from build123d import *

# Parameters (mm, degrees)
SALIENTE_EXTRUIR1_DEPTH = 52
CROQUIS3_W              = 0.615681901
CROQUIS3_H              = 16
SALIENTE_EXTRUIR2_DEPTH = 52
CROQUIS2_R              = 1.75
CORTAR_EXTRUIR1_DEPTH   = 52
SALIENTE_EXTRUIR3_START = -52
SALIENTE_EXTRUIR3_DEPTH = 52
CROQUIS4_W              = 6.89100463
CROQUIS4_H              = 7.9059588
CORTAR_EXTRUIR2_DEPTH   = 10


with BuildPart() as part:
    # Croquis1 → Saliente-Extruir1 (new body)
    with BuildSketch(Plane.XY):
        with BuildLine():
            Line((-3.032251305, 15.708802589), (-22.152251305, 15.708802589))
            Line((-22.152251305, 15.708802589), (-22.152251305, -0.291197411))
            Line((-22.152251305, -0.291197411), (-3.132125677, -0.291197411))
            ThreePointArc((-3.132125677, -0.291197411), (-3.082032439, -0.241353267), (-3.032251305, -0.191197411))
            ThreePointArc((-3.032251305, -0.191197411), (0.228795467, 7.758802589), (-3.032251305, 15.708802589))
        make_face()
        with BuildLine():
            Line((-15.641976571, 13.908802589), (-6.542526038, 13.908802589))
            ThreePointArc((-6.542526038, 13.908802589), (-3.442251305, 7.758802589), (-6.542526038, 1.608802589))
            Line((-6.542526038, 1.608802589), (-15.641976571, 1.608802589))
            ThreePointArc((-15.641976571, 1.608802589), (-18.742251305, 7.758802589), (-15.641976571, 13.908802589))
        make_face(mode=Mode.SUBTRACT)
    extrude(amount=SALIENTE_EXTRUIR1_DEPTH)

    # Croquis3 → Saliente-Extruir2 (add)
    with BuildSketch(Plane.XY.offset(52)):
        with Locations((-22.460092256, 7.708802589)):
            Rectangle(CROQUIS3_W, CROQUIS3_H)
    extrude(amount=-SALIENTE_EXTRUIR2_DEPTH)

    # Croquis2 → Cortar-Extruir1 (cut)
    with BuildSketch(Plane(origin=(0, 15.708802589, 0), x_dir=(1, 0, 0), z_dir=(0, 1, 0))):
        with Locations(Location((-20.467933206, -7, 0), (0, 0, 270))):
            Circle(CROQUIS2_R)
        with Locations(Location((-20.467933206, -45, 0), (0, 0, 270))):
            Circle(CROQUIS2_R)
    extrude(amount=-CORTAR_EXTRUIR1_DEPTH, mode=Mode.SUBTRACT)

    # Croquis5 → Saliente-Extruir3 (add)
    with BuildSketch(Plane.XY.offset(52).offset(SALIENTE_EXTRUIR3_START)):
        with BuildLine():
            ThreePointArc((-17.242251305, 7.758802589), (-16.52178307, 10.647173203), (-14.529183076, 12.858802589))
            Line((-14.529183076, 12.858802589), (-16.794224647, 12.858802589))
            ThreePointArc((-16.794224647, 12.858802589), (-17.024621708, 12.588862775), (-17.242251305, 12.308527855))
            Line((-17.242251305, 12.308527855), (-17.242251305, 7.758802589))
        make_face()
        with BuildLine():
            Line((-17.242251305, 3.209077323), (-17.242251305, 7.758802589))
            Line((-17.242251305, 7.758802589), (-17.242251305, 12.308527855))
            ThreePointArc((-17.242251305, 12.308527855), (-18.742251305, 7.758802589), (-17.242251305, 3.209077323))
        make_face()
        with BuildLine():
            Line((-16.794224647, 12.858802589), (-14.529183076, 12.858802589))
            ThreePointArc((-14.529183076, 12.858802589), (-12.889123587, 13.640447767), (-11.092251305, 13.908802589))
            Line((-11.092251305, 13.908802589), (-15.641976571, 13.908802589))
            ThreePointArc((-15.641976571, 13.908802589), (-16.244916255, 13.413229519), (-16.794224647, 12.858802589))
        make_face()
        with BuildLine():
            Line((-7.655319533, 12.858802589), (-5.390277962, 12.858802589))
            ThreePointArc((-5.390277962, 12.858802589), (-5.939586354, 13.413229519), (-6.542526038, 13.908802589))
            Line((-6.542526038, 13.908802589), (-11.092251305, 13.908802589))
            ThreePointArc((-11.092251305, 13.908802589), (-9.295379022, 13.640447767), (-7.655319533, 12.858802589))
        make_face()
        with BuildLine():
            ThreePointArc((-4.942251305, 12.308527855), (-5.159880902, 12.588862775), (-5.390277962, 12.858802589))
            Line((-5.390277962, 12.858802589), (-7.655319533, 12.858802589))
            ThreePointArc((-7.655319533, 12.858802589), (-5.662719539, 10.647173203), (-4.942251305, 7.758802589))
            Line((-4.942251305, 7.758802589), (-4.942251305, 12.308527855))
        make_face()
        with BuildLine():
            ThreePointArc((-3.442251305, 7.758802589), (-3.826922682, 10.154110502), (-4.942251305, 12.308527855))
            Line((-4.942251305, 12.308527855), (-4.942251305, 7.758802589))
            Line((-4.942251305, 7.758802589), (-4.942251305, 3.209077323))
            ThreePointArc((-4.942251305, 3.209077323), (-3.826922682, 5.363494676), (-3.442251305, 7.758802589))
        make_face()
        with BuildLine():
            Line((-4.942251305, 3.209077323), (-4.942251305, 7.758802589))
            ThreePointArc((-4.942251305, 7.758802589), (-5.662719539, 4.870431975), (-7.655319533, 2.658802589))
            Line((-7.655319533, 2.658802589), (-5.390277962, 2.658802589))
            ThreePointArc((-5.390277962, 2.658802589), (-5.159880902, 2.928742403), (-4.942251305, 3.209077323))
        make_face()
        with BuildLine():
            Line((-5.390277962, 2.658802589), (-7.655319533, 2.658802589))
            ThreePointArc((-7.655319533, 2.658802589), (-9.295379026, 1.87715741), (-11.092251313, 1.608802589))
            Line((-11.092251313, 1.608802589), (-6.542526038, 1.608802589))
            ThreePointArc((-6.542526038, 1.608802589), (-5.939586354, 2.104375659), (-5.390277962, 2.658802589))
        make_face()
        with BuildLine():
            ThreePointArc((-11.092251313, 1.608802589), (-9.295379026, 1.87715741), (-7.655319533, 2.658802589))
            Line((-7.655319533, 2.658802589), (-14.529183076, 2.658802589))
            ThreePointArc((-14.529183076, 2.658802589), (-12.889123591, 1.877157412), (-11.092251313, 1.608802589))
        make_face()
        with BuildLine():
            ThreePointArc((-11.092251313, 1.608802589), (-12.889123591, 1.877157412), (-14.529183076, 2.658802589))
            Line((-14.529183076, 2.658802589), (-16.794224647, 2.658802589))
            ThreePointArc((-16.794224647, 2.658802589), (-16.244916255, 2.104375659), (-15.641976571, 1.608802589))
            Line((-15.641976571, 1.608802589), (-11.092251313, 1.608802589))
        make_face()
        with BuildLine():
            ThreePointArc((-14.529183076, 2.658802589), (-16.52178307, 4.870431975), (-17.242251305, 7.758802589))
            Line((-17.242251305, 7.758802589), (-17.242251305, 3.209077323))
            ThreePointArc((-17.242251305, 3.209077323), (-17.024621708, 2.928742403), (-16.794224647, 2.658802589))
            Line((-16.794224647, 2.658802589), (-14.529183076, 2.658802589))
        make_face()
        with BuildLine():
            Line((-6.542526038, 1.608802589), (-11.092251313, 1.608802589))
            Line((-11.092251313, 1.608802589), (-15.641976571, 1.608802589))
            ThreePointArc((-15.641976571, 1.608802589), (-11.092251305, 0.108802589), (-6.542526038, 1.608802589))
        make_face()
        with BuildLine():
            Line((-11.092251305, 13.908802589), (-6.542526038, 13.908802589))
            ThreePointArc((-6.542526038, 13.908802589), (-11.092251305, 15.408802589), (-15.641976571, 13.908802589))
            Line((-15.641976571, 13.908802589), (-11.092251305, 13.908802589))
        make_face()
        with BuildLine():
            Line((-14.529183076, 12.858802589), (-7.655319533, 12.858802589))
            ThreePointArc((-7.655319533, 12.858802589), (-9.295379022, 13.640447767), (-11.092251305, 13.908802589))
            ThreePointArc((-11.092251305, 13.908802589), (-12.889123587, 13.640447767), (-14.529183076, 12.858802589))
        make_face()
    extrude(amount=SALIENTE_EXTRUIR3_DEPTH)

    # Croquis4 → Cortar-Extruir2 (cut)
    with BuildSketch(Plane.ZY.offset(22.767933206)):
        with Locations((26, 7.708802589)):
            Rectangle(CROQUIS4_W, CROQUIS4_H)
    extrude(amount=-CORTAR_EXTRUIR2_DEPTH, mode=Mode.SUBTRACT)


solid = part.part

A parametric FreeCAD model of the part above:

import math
import FreeCAD as App
import Part
import Sketcher
Q = App.Units.Quantity


def add_polygon(sketch, points):
    """Adds a closed chain of lines whose ends are joined by coincident constraints."""
    first, n = sketch.GeometryCount, len(points)
    for a, b in zip(points, points[1:] + points[:1]):
        sketch.addGeometry(Part.LineSegment(App.Vector(*a, 0), App.Vector(*b, 0)), False)
    for i in range(n):
        sketch.addConstraint(Sketcher.Constraint("Coincident", first + i, 2, first + (i + 1) % n, 1))

doc = App.newDocument("Part")
body = doc.addObject("PartDesign::Body", "Body")

sketch1 = body.newObject("Sketcher::SketchObject", "Sketch")
sketch1.AttachmentSupport = (doc.getObject("XY_Plane"), [""])
sketch1.MapMode = "FlatFace"
sketch1.addGeometry([
    Part.LineSegment(App.Vector(-3.03, 15.71, 0), App.Vector(-22.15, 15.71, 0)),
    Part.LineSegment(App.Vector(-22.15, 15.71, 0), App.Vector(-22.15, -0.29, 0)),
    Part.LineSegment(App.Vector(-22.15, -0.29, 0), App.Vector(-3.13, -0.29, 0)),
    Part.ArcOfCircle(Part.Circle(App.Vector(-11.09, 7.76, 0), App.Vector(0, 0, 1), 11.32), math.radians(-45.32), math.radians(-44.61)),
    Part.ArcOfCircle(Part.Circle(App.Vector(-11.09, 7.76, 0), App.Vector(0, 0, 1), 11.32), math.radians(-45), math.radians(45)),
    Part.ArcOfCircle(Part.Circle(App.Vector(-11.09, 7.76, 0), App.Vector(0, 0, 1), 7.65), math.radians(126), math.radians(234)),
    Part.LineSegment(App.Vector(-15.64, 13.91, 0), App.Vector(-6.54, 13.91, 0)),
    Part.ArcOfCircle(Part.Circle(App.Vector(-11.09, 7.76, 0), App.Vector(0, 0, 1), 7.65), math.radians(-54), math.radians(54)),
    Part.LineSegment(App.Vector(-6.54, 1.61, 0), App.Vector(-15.64, 1.61, 0)),
], False)
sketch1.addConstraint([
    Sketcher.Constraint("Coincident", 0, 2, 1, 1),
    Sketcher.Constraint("Coincident", 1, 2, 2, 1),
    Sketcher.Constraint("Coincident", 2, 2, 3, 1),
    Sketcher.Constraint("Tangent", 3, 2, 4, 1),
    Sketcher.Constraint("Coincident", 4, 2, 0, 1),
    Sketcher.Constraint("Coincident", 5, 1, 6, 1),
    Sketcher.Constraint("Coincident", 6, 2, 7, 2),
    Sketcher.Constraint("Coincident", 7, 1, 8, 1),
    Sketcher.Constraint("Coincident", 8, 2, 5, 2),
    Sketcher.Constraint("Horizontal", 0),
    Sketcher.Constraint("Vertical", 1),
    Sketcher.Constraint("Horizontal", 2),
    Sketcher.Constraint("Horizontal", 6),
    Sketcher.Constraint("Horizontal", 8),
    Sketcher.Constraint("Coincident", 5, 3, 4, 3),
    Sketcher.Constraint("Coincident", 7, 3, 4, 3),
    Sketcher.Constraint("Equal", 5, 7),
    Sketcher.Constraint("Vertical", 3, 2, 4, 2),
    Sketcher.Constraint("Vertical", 6, 2, 7, 1),
    Sketcher.Constraint("DistanceY", 1, 2, 1, 1, Q("16 mm")),
    Sketcher.Constraint("Radius", 5, Q("7.65 mm")),
    Sketcher.Constraint("DistanceX", 0, 2, 0, 1, Q("19.12 mm")),
    Sketcher.Constraint("DistanceY", 2, 2, 3, 2, Q("0.1 mm")),
    Sketcher.Constraint("DistanceY", 5, 1, 0, 2, Q("1.8 mm")),
    Sketcher.Constraint("Radius", 3, Q("11.321059 mm")),
    Sketcher.Constraint("DistanceX", 0, 2, 5, 3, Q("11.06 mm")),
    Sketcher.Constraint("DistanceX", 3, 3, -1, 1, Q("11.09226 mm")),
    Sketcher.Constraint("DistanceY", -1, 1, 3, 3, Q("7.758811 mm")),
])
pad1 = body.newObject("PartDesign::Pad", "Pad")
pad1.Profile = sketch1
pad1.Length = 52

sketch2 = body.newObject("Sketcher::SketchObject", "Sketch001")
sketch2.AttachmentSupport = (doc.getObject("XY_Plane"), [""])
sketch2.MapMode = "FlatFace"
sketch2.AttachmentOffset = App.Placement(App.Vector(0, 0, 52), App.Rotation())
add_polygon(sketch2, [(-22.8, 15.7), (-22.8, -0.3), (-22.2, -0.3), (-22.2, 15.7)])
sketch2.addConstraint([
    Sketcher.Constraint("Vertical", 0),
    Sketcher.Constraint("Horizontal", 1),
    Sketcher.Constraint("Vertical", 2),
    Sketcher.Constraint("Horizontal", 3),
    Sketcher.Constraint("DistanceY", 0, 2, 0, 1, Q("16 mm")),
    Sketcher.Constraint("DistanceX", 1, 1, 1, 2, Q("0.615682 mm")),
    Sketcher.Constraint("DistanceX", 1, 2, -1, 1, Q("22.152251 mm")),
    Sketcher.Constraint("DistanceY", 0, 2, -1, 1, Q("0.291197 mm")),
])
pad2 = body.newObject("PartDesign::Pad", "Pad001")
pad2.Profile = sketch2
pad2.Length = 52
pad2.Reversed = True

sketch3 = body.newObject("Sketcher::SketchObject", "Sketch002")
sketch3.AttachmentSupport = (doc.getObject("XZ_Plane"), [""])
sketch3.MapMode = "FlatFace"
sketch3.AttachmentOffset = App.Placement(App.Vector(0, 0, -15.708803), App.Rotation())
sketch3.addGeometry([
    Part.Circle(App.Vector(-20.5, 7, 0), App.Vector(0, 0, 1), 1.8),
    Part.Circle(App.Vector(-20.5, 45, 0), App.Vector(0, 0, 1), 1.8),
], False)
sketch3.addConstraint([
    Sketcher.Constraint("Equal", 0, 1),
    Sketcher.Constraint("Vertical", 0, 3, 1, 3),
    Sketcher.Constraint("Diameter", 0, Q("3.5 mm")),
    Sketcher.Constraint("DistanceY", -1, 1, 0, 3, Q("7 mm")),
    Sketcher.Constraint("DistanceY", -1, 1, 1, 3, Q("45 mm")),
    Sketcher.Constraint("DistanceX", 0, 3, -1, 1, Q("20.467933 mm")),
])
pocket1 = body.newObject("PartDesign::Pocket", "Pocket")
pocket1.Profile = sketch3
pocket1.Length = 52
pocket1.Reversed = True

sketch4 = body.newObject("Sketcher::SketchObject", "Sketch003")
sketch4.AttachmentSupport = (doc.getObject("XY_Plane"), [""])
sketch4.MapMode = "FlatFace"
sketch4.addGeometry([
    Part.ArcOfCircle(Part.Circle(App.Vector(-11.1, 7.8, 0), App.Vector(0, 0, 1), 7.7), math.radians(41.81), math.radians(53.51)),
    Part.ArcOfCircle(Part.Circle(App.Vector(-11.1, 7.8, 0), App.Vector(0, 0, 1), 7.7), math.radians(54), math.radians(126)),
    Part.ArcOfCircle(Part.Circle(App.Vector(-11.1, 7.8, 0), App.Vector(0, 0, 1), 7.7), math.radians(126.49), math.radians(138.19)),
    Part.ArcOfCircle(Part.Circle(App.Vector(-11.1, 7.8, 0), App.Vector(0, 0, 1), 7.6), math.radians(138.19), math.radians(143.51)),
    Part.ArcOfCircle(Part.Circle(App.Vector(-11.1, 7.8, 0), App.Vector(0, 0, 1), 7.6), math.radians(144), math.radians(216)),
    Part.ArcOfCircle(Part.Circle(App.Vector(-11.1, 7.8, 0), App.Vector(0, 0, 1), 7.6), math.radians(-143.51), math.radians(-138.19)),
    Part.ArcOfCircle(Part.Circle(App.Vector(-11.1, 7.8, 0), App.Vector(0, 0, 1), 7.7), math.radians(-138.19), math.radians(-126.49)),
    Part.ArcOfCircle(Part.Circle(App.Vector(-11.1, 7.8, 0), App.Vector(0, 0, 1), 7.7), math.radians(-126), math.radians(-54)),
    Part.ArcOfCircle(Part.Circle(App.Vector(-11.1, 7.8, 0), App.Vector(0, 0, 1), 7.7), math.radians(-53.51), math.radians(-41.81)),
    Part.ArcOfCircle(Part.Circle(App.Vector(-11.1, 7.8, 0), App.Vector(0, 0, 1), 7.7), math.radians(-41.81), math.radians(-36.49)),
    Part.ArcOfCircle(Part.Circle(App.Vector(-11.1, 7.8, 0), App.Vector(0, 0, 1), 7.7), math.radians(-36), math.radians(0)),
    Part.ArcOfCircle(Part.Circle(App.Vector(-11.1, 7.8, 0), App.Vector(0, 0, 1), 7.7), math.radians(0), math.radians(36)),
    Part.ArcOfCircle(Part.Circle(App.Vector(-11.1, 7.8, 0), App.Vector(0, 0, 1), 7.7), math.radians(36.49), math.radians(41.81)),
    Part.ArcOfCircle(Part.Circle(App.Vector(-11.1, 7.8, 0), App.Vector(0, 0, 1), 6.2), math.radians(0), math.radians(56)),
    Part.ArcOfCircle(Part.Circle(App.Vector(-11.1, 7.8, 0), App.Vector(0, 0, 1), 6.2), math.radians(-56), math.radians(0)),
    Part.LineSegment(App.Vector(-7.7, 2.7, 0), App.Vector(-14.5, 2.7, 0)),
    Part.ArcOfCircle(Part.Circle(App.Vector(-11.1, 7.8, 0), App.Vector(0, 0, 1), 6.2), math.radians(-180), math.radians(-124)),
    Part.ArcOfCircle(Part.Circle(App.Vector(-11.1, 7.8, 0), App.Vector(0, 0, 1), 6.2), math.radians(124), math.radians(180)),
    Part.LineSegment(App.Vector(-14.5, 12.9, 0), App.Vector(-7.7, 12.9, 0)),
], False)
sketch4.addConstraint([
    Sketcher.Constraint("Tangent", 0, 2, 1, 1),
    Sketcher.Constraint("Tangent", 1, 2, 2, 1),
    Sketcher.Constraint("Tangent", 2, 2, 3, 1),
    Sketcher.Constraint("Tangent", 3, 2, 4, 1),
    Sketcher.Constraint("Tangent", 4, 2, 5, 1),
    Sketcher.Constraint("Tangent", 5, 2, 6, 1),
    Sketcher.Constraint("Tangent", 6, 2, 7, 1),
    Sketcher.Constraint("Tangent", 7, 2, 8, 1),
    Sketcher.Constraint("Tangent", 8, 2, 9, 1),
    Sketcher.Constraint("Tangent", 9, 2, 10, 1),
    Sketcher.Constraint("Tangent", 10, 2, 11, 1),
    Sketcher.Constraint("Tangent", 11, 2, 12, 1),
    Sketcher.Constraint("Tangent", 12, 2, 0, 1),
    Sketcher.Constraint("Tangent", 13, 1, 14, 2),
    Sketcher.Constraint("Coincident", 14, 1, 15, 1),
    Sketcher.Constraint("Coincident", 15, 2, 16, 2),
    Sketcher.Constraint("Tangent", 16, 1, 17, 2),
    Sketcher.Constraint("Coincident", 17, 1, 18, 1),
    Sketcher.Constraint("Coincident", 18, 2, 13, 2),
    Sketcher.Constraint("Horizontal", 15),
    Sketcher.Constraint("Horizontal", 18),
    Sketcher.Constraint("Coincident", 2, 3, 0, 3),
    Sketcher.Constraint("Coincident", 4, 3, 0, 3),
    Sketcher.Constraint("Coincident", 6, 3, 0, 3),
    Sketcher.Constraint("Coincident", 8, 3, 0, 3),
    Sketcher.Constraint("Coincident", 10, 3, 0, 3),
    Sketcher.Constraint("Coincident", 13, 3, 0, 3),
    Sketcher.Constraint("Coincident", 16, 3, 0, 3),
    Sketcher.Constraint("Equal", 13, 14),
    Sketcher.Constraint("Equal", 14, 16),
    Sketcher.Constraint("Equal", 16, 17),
    Sketcher.Constraint("Horizontal", 0, 2, 1, 2),
    Sketcher.Constraint("Horizontal", 6, 2, 7, 2),
    Sketcher.Constraint("Horizontal", 5, 2, 8, 2),
    Sketcher.Constraint("Horizontal", 4, 2, 9, 2),
    Sketcher.Constraint("Horizontal", 17, 3, 10, 2),
    Sketcher.Constraint("Horizontal", 3, 2, 11, 2),
    Sketcher.Constraint("Horizontal", 2, 2, 12, 2),
    Sketcher.Constraint("Horizontal", 10, 2, 13, 1),
    Sketcher.Constraint("Horizontal", 8, 2, 14, 1),
    Sketcher.Constraint("Horizontal", 13, 1, 16, 1),
    Sketcher.Constraint("Horizontal", 12, 2, 17, 1),
    Sketcher.Constraint("Vertical", 3, 2, 4, 2),
    Sketcher.Constraint("Vertical", 2, 2, 5, 2),
    Sketcher.Constraint("Vertical", 1, 2, 6, 2),
    Sketcher.Constraint("Vertical", 11, 2, 13, 1),
    Sketcher.Constraint("Radius", 0, Q("7.65 mm")),
    Sketcher.Constraint("Radius", 13, Q("6.15 mm")),
    Sketcher.Constraint("DistanceY", 3, 3, 2, 2, Q("5.1 mm")),
    Sketcher.Constraint("DistanceY", 6, 3, 0, 2, Q("6.15 mm")),
    Sketcher.Constraint("DistanceX", 0, 3, -1, 1, Q("11.092251 mm")),
    Sketcher.Constraint("DistanceY", -1, 1, 0, 3, Q("7.758803 mm")),
])
pad3 = body.newObject("PartDesign::Pad", "Pad002")
pad3.Profile = sketch4
pad3.Length = 52

sketch5 = body.newObject("Sketcher::SketchObject", "Sketch004")
sketch5.AttachmentSupport = (doc.getObject("YZ_Plane"), [""])
sketch5.MapMode = "FlatFace"
sketch5.AttachmentOffset = App.Placement(App.Vector(0, 0, -22.767933), App.Rotation())
add_polygon(sketch5, [(12, 23), (4, 23), (4, 29), (12, 29)])
sketch5.addConstraint([
    Sketcher.Constraint("Horizontal", 0),
    Sketcher.Constraint("Vertical", 1),
    Sketcher.Constraint("Horizontal", 2),
    Sketcher.Constraint("Vertical", 3),
    Sketcher.Constraint("DistanceX", 0, 2, 0, 1, Q("7.905959 mm")),
    Sketcher.Constraint("DistanceY", 1, 1, 1, 2, Q("6.891005 mm")),
    Sketcher.Constraint("DistanceX", -1, 1, 2, 2, Q("11.661782 mm")),
    Sketcher.Constraint("DistanceY", -1, 1, 0, 2, Q("22.554498 mm")),
])
pocket2 = body.newObject("PartDesign::Pocket", "Pocket001")
pocket2.Profile = sketch5
pocket2.Length = 10
pocket2.Reversed = True

doc.recompute()
